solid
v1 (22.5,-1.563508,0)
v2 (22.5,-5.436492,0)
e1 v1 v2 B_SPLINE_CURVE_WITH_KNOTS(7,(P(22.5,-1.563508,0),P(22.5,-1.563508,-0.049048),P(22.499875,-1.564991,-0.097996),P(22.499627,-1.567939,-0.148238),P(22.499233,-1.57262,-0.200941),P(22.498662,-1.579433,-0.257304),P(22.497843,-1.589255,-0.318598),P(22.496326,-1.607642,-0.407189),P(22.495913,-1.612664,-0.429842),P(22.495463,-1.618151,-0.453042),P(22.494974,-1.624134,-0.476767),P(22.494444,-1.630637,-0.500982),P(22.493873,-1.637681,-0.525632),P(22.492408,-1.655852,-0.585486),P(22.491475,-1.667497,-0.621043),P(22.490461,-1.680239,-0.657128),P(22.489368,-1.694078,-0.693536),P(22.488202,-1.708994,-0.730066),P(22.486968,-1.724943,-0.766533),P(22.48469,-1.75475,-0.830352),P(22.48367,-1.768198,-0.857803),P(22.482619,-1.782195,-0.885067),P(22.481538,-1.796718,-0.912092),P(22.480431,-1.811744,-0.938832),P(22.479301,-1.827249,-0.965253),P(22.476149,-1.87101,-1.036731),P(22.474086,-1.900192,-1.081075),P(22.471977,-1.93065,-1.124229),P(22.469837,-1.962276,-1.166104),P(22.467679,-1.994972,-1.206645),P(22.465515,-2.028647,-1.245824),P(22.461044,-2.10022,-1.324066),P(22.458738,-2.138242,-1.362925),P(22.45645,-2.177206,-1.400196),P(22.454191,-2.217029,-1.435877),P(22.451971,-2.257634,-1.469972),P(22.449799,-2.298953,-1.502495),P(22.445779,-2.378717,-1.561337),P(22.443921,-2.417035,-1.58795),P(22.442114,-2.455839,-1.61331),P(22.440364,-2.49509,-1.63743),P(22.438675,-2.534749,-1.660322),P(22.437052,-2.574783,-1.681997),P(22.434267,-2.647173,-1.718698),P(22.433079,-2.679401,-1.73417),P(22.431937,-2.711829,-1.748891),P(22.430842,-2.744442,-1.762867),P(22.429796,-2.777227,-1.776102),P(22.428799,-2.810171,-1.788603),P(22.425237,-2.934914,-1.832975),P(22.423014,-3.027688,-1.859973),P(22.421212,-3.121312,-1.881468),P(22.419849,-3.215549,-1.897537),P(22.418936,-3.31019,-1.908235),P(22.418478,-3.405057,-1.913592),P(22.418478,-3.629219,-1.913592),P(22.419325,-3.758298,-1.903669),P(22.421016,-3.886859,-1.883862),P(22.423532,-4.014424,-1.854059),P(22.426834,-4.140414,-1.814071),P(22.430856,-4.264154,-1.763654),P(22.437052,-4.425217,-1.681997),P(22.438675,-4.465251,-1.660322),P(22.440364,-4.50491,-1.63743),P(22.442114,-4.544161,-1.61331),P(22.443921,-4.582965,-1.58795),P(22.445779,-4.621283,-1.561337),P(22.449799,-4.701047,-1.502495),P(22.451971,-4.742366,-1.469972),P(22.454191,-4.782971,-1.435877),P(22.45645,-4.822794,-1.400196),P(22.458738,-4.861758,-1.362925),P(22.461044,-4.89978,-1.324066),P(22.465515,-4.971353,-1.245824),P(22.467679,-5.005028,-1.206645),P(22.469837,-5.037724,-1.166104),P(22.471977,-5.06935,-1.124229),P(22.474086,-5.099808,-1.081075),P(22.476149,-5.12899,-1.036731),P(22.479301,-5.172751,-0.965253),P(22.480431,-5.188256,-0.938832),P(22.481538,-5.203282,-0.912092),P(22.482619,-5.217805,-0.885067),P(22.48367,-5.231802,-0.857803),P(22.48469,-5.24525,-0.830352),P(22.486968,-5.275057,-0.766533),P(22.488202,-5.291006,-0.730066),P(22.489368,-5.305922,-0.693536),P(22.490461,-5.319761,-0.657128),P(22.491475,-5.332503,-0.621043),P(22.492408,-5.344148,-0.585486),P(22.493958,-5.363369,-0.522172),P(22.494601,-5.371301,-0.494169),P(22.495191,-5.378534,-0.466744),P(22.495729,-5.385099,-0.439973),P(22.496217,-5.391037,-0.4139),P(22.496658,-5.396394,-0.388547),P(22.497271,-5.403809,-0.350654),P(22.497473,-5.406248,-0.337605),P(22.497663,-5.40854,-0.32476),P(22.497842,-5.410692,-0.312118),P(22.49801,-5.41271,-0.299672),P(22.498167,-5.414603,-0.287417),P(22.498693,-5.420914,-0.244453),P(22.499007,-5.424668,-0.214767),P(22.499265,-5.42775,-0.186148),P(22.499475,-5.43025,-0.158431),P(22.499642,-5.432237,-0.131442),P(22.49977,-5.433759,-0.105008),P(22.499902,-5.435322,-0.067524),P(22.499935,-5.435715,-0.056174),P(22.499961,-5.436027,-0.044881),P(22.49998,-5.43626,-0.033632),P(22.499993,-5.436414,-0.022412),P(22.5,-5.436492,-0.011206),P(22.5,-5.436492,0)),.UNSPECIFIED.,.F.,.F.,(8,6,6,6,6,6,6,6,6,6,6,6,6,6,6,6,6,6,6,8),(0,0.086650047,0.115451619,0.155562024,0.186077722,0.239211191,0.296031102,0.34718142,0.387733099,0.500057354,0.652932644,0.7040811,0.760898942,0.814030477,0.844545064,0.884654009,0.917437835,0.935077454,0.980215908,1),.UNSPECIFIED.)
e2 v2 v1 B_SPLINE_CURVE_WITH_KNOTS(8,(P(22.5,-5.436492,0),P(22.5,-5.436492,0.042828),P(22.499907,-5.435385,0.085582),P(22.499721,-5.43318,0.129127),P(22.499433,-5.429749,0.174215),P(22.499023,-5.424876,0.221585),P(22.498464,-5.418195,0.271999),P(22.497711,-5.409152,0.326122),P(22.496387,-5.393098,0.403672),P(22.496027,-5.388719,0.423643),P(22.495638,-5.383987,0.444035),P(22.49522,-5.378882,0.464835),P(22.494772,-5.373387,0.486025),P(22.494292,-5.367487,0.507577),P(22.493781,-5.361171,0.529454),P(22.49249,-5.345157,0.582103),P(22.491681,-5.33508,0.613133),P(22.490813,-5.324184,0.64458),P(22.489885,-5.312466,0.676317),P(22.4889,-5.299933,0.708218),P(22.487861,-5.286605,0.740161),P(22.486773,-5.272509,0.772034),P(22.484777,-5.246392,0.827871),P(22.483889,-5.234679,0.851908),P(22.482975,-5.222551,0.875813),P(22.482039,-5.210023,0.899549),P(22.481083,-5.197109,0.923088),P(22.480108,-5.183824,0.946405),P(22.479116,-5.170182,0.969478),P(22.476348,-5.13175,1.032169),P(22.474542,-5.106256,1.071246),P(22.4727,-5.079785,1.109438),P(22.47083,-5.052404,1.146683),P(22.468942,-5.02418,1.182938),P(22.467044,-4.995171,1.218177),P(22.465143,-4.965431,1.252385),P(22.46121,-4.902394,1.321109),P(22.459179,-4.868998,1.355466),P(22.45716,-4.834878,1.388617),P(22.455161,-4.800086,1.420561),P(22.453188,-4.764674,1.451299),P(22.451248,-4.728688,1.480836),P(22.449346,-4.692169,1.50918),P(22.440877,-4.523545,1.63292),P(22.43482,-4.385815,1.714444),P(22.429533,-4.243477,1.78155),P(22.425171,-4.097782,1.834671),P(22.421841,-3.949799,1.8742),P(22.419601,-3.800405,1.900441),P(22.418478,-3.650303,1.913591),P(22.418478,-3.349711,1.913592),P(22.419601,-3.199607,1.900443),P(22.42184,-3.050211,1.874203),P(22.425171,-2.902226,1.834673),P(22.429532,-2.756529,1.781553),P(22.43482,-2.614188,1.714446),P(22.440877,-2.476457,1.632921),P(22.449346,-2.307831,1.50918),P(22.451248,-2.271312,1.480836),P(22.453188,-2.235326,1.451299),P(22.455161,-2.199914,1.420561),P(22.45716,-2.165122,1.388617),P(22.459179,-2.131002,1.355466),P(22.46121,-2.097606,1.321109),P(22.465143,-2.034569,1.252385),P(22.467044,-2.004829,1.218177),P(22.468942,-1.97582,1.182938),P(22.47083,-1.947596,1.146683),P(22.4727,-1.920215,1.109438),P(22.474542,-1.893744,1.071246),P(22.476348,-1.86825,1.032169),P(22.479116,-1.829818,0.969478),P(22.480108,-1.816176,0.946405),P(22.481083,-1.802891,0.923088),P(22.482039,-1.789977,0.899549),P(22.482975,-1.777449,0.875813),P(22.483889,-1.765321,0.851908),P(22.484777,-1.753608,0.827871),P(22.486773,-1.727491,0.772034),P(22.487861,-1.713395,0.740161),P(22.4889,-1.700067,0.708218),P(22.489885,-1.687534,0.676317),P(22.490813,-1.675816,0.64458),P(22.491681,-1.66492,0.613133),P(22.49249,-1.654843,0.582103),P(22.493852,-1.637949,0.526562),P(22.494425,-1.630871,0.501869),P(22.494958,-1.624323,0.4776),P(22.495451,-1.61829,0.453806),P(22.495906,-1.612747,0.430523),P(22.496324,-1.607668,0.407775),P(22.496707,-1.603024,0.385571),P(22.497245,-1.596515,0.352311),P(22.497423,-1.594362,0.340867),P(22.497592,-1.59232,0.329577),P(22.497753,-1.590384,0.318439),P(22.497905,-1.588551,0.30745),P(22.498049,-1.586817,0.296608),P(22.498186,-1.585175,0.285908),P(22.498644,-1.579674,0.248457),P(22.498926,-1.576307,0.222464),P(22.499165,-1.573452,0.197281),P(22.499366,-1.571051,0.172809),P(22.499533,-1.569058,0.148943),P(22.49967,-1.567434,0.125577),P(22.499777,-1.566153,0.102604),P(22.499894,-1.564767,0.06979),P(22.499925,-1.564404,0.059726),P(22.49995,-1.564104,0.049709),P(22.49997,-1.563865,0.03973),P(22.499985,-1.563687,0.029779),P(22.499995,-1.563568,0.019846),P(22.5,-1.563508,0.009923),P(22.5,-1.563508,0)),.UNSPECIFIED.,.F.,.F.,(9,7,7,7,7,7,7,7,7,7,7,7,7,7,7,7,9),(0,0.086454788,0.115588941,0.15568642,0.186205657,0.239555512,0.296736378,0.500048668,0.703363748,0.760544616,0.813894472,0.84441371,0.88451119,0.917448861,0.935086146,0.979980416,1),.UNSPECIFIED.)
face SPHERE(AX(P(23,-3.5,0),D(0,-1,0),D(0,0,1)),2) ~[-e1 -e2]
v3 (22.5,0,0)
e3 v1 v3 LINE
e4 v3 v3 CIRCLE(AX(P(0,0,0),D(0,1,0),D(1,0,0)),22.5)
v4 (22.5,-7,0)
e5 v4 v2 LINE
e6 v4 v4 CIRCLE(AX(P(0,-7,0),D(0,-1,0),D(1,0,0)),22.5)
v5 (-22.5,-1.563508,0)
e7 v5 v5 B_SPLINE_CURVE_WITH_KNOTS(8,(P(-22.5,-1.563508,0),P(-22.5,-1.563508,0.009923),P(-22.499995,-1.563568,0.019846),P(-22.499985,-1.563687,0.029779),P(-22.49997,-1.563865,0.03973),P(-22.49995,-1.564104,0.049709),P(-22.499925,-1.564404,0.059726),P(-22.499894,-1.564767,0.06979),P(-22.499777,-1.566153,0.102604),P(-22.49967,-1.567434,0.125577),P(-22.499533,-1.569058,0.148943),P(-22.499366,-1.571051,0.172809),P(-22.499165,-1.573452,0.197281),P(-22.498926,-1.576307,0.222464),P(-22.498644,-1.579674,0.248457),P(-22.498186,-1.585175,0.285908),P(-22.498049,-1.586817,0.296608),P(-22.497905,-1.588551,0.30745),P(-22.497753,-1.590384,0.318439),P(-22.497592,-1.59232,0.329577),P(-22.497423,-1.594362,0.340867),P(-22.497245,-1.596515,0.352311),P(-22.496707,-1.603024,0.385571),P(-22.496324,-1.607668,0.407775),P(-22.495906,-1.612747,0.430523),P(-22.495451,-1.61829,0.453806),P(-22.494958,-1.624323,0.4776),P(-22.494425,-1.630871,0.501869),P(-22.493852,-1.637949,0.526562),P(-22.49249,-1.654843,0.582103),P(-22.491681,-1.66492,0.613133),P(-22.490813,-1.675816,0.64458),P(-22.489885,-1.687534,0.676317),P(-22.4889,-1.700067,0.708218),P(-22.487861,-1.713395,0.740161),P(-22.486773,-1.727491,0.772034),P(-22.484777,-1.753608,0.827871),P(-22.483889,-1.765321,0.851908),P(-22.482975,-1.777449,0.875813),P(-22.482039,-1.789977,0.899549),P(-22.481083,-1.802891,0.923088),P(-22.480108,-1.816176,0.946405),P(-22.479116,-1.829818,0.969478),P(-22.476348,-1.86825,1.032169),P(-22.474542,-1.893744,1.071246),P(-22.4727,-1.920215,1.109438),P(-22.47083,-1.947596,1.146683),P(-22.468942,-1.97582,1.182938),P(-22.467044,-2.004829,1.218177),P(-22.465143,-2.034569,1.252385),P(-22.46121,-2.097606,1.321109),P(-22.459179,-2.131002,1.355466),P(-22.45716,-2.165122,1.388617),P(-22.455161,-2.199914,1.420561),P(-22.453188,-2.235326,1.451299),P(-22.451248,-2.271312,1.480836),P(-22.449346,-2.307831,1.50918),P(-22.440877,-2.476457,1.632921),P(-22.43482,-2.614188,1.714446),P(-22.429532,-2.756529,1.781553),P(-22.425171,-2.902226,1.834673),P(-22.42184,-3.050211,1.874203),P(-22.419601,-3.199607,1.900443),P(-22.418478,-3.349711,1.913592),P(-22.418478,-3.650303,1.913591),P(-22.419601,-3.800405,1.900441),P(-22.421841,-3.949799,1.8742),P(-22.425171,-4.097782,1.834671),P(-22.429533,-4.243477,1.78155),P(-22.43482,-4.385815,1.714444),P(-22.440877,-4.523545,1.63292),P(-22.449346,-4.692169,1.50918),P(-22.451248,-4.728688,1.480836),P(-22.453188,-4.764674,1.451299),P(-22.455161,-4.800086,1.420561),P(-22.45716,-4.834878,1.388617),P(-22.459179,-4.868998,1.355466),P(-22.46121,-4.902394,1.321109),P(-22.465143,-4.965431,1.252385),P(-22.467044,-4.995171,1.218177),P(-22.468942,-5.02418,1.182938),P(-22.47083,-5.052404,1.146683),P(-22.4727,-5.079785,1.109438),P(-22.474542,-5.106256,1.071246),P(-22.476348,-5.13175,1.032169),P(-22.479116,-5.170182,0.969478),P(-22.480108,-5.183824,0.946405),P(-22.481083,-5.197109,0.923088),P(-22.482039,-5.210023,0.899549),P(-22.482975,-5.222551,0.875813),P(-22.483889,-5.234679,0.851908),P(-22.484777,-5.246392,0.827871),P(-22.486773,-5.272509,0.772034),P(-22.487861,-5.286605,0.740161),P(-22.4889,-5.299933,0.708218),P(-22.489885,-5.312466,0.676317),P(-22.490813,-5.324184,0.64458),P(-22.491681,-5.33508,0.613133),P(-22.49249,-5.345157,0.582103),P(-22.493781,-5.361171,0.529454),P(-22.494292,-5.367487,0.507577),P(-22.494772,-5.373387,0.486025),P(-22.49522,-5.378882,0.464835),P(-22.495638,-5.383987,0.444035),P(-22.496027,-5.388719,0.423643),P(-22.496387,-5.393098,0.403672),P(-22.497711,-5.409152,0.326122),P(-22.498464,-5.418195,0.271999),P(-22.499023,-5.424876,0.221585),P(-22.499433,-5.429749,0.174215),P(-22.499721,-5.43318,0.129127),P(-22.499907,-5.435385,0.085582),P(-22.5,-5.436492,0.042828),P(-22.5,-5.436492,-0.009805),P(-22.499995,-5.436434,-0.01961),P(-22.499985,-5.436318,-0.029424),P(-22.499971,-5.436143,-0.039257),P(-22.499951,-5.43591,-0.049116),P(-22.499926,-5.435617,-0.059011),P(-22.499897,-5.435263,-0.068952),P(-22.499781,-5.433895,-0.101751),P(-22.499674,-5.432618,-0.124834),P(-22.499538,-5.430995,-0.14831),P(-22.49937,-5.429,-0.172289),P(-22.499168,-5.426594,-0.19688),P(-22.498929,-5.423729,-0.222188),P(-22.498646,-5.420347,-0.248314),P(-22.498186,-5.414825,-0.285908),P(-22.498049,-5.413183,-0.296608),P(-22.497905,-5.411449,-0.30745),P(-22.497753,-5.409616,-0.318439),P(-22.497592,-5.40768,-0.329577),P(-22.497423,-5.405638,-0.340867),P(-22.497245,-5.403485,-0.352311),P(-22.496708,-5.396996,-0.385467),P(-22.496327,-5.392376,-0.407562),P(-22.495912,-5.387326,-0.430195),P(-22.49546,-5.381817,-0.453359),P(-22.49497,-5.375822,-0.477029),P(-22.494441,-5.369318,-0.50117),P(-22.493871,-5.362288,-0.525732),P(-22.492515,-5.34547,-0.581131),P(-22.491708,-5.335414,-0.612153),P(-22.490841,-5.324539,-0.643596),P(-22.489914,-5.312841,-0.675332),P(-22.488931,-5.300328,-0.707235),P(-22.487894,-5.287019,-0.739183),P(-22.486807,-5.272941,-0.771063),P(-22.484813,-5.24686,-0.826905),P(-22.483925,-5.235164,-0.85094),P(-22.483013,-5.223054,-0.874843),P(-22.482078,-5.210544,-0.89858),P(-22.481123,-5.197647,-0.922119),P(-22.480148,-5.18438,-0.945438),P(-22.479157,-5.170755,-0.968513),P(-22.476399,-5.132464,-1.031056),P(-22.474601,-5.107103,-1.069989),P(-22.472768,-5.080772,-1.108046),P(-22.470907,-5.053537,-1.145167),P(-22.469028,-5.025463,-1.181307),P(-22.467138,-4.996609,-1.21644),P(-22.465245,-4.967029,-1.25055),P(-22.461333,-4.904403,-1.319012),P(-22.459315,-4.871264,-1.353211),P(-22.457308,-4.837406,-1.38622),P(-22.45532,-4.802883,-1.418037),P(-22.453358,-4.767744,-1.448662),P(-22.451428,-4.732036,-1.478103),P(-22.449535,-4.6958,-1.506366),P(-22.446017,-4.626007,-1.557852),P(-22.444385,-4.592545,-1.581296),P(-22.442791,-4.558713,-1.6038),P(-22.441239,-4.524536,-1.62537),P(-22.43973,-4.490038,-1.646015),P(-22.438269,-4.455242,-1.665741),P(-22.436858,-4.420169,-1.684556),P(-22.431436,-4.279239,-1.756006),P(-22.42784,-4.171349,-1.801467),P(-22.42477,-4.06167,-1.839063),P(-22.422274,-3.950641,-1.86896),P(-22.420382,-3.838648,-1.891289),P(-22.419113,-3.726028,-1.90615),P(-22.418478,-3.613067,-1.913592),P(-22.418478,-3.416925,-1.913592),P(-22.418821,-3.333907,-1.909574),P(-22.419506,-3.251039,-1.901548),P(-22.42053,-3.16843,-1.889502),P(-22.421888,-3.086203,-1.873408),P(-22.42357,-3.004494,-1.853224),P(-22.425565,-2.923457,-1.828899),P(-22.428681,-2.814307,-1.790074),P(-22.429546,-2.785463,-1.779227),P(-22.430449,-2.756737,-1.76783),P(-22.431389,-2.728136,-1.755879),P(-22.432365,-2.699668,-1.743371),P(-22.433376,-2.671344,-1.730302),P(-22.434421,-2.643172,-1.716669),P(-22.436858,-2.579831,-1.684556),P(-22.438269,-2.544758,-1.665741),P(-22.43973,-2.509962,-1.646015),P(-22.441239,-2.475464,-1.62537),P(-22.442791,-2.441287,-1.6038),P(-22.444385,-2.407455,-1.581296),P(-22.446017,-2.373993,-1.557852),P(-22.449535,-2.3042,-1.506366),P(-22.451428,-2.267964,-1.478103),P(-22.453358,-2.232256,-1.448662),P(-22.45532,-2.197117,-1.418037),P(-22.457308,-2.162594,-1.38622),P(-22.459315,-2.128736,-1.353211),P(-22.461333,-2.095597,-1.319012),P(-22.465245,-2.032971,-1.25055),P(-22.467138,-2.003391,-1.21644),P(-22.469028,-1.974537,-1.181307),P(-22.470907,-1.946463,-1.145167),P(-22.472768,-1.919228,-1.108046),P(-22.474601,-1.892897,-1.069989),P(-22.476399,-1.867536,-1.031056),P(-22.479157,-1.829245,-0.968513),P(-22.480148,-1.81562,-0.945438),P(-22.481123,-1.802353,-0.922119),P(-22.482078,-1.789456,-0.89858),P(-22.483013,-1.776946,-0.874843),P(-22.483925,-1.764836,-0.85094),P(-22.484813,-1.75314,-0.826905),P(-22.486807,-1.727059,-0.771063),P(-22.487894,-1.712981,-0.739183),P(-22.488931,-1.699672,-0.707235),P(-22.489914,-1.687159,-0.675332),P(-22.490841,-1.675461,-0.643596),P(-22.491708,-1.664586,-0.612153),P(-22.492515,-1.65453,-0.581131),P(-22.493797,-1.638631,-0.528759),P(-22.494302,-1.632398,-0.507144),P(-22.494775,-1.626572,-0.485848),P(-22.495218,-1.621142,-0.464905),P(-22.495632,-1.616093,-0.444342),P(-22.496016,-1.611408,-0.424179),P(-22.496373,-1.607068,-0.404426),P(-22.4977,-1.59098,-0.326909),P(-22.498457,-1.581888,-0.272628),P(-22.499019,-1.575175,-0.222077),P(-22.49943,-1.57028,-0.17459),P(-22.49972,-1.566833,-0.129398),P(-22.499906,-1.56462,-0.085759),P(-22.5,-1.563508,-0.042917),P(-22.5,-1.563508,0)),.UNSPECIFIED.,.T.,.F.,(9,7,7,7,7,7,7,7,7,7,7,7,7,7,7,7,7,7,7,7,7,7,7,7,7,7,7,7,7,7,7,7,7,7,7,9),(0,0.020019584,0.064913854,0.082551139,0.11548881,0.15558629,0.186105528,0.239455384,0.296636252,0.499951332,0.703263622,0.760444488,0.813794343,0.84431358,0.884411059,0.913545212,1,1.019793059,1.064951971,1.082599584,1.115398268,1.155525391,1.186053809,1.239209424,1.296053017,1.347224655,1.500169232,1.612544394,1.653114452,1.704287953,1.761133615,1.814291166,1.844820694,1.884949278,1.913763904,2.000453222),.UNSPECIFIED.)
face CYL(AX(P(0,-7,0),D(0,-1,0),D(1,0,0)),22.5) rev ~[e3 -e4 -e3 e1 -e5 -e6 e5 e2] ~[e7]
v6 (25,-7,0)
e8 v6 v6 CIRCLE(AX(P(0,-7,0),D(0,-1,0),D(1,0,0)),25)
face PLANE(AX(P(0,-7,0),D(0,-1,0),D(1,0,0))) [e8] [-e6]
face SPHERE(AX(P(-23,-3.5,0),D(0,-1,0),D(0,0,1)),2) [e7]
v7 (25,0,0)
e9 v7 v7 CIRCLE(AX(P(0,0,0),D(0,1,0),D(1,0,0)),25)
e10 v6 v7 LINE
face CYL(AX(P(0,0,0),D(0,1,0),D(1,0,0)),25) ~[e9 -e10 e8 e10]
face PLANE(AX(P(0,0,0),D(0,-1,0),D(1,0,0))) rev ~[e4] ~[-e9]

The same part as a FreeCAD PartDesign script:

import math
import FreeCAD as App
import Part
import Sketcher

doc = App.newDocument("Part")
params = doc.addObject("Spreadsheet::Sheet", "Params")
for row, (alias, value) in enumerate([
    ("sketch1_diameter", "50 mm"),
    ("pad1_length", "7 mm"),
    ("sketch2_diameter", "45 mm"),
    ("pocket1_length", "25 mm"),
    ("sketch3_radius", "2 mm"),
    ("revolution_angle", "360 deg"),
], start=1):
    params.set(f"A{row}", alias)
    params.set(f"B{row}", "=" + value)
    params.setAlias(f"B{row}", alias)

body = doc.addObject("PartDesign::Body", "Body")

sketch1 = body.newObject("Sketcher::SketchObject", "Sketch")
sketch1.AttachmentSupport = (doc.getObject("XZ_Plane"), [""])
sketch1.MapMode = "FlatFace"
sketch1.addGeometry(Part.Circle(App.Vector(0, 0, 0), App.Vector(0, 0, 1), 25), False)
sketch1.addConstraint([
    Sketcher.Constraint("Coincident", 0, 3, -1, 1),
    Sketcher.Constraint("Diameter", 0, 50.0),
])
sketch1.setExpression("Constraints[1]", "Params.sketch1_diameter")
pad1 = body.newObject("PartDesign::Pad", "Pad")
pad1.Profile = sketch1
pad1.setExpression("Length", "Params.pad1_length")

sketch2 = body.newObject("Sketcher::SketchObject", "Sketch001")
sketch2.AttachmentSupport = (doc.getObject("XZ_Plane"), [""])
sketch2.MapMode = "FlatFace"
sketch2.AttachmentOffset = App.Placement(App.Vector(0, 0, 7), App.Rotation())
sketch2.addGeometry(Part.Circle(App.Vector(0, 0, 0), App.Vector(0, 0, 1), 22), False)
sketch2.addConstraint([
    Sketcher.Constraint("Coincident", 0, 3, -1, 1),
    Sketcher.Constraint("Diameter", 0, 45.0),
])
sketch2.setExpression("Constraints[1]", "Params.sketch2_diameter")
pocket1 = body.newObject("PartDesign::Pocket", "Pocket")
pocket1.Profile = sketch2
pocket1.setExpression("Length", "Params.pocket1_length")

sketch3 = body.newObject("Sketcher::SketchObject", "Sketch002")
sketch3.AttachmentSupport = (doc.getObject("YZ_Plane"), [""])
sketch3.MapMode = "FlatFace"
sketch3.AttachmentOffset = App.Placement(App.Vector(0, 0, 23), App.Rotation())
sketch3.addGeometry([
    Part.LineSegment(App.Vector(-5.5, 0, 0), App.Vector(-1.5, 0, 0)),
    Part.ArcOfCircle(Part.Circle(App.Vector(-3.5, 0, 0), App.Vector(0, 0, 1), 2), math.radians(0), math.radians(180)),
], False)
sketch3.addConstraint([
    Sketcher.Constraint("Coincident", 0, 1, 1, 2),
    Sketcher.Constraint("Coincident", 1, 1, 0, 2),
    Sketcher.Constraint("Horizontal", 0),
    Sketcher.Constraint("PointOnObject", 1, 3, -1),
    Sketcher.Constraint("PointOnObject", 0, 1, -1),
    Sketcher.Constraint("Radius", 1, 2.0),
    Sketcher.Constraint("DistanceX", 1, 3, -1, 1, 3.5),
])
sketch3.setExpression("Constraints[5]", "Params.sketch3_radius")
revolution = body.newObject("PartDesign::Revolution", "Revolution")
revolution.Profile = sketch3
revolution.ReferenceAxis = (sketch3, ["H_Axis"])
revolution.setExpression("Angle", "Params.revolution_angle")
body2 = doc.addObject("PartDesign::Body", "Body001")
doc.recompute()

body2.BaseFeature = body
doc.recompute()

mirroring = doc.addObject("Part::Mirroring", "Mirroring")
mirroring.Source = body
mirroring.Base = App.Vector(0, 0, 0)
mirroring.Normal = App.Vector(1, 0, 0)
body3 = doc.addObject("PartDesign::Body", "Body002")
body3.BaseFeature = mirroring
boolean = body2.newObject("PartDesign::Boolean", "Boolean")
boolean.Type = "Fuse"
boolean.addObjects([body3])
doc.recompute()
mirroring.Visibility = False

doc.recompute()
